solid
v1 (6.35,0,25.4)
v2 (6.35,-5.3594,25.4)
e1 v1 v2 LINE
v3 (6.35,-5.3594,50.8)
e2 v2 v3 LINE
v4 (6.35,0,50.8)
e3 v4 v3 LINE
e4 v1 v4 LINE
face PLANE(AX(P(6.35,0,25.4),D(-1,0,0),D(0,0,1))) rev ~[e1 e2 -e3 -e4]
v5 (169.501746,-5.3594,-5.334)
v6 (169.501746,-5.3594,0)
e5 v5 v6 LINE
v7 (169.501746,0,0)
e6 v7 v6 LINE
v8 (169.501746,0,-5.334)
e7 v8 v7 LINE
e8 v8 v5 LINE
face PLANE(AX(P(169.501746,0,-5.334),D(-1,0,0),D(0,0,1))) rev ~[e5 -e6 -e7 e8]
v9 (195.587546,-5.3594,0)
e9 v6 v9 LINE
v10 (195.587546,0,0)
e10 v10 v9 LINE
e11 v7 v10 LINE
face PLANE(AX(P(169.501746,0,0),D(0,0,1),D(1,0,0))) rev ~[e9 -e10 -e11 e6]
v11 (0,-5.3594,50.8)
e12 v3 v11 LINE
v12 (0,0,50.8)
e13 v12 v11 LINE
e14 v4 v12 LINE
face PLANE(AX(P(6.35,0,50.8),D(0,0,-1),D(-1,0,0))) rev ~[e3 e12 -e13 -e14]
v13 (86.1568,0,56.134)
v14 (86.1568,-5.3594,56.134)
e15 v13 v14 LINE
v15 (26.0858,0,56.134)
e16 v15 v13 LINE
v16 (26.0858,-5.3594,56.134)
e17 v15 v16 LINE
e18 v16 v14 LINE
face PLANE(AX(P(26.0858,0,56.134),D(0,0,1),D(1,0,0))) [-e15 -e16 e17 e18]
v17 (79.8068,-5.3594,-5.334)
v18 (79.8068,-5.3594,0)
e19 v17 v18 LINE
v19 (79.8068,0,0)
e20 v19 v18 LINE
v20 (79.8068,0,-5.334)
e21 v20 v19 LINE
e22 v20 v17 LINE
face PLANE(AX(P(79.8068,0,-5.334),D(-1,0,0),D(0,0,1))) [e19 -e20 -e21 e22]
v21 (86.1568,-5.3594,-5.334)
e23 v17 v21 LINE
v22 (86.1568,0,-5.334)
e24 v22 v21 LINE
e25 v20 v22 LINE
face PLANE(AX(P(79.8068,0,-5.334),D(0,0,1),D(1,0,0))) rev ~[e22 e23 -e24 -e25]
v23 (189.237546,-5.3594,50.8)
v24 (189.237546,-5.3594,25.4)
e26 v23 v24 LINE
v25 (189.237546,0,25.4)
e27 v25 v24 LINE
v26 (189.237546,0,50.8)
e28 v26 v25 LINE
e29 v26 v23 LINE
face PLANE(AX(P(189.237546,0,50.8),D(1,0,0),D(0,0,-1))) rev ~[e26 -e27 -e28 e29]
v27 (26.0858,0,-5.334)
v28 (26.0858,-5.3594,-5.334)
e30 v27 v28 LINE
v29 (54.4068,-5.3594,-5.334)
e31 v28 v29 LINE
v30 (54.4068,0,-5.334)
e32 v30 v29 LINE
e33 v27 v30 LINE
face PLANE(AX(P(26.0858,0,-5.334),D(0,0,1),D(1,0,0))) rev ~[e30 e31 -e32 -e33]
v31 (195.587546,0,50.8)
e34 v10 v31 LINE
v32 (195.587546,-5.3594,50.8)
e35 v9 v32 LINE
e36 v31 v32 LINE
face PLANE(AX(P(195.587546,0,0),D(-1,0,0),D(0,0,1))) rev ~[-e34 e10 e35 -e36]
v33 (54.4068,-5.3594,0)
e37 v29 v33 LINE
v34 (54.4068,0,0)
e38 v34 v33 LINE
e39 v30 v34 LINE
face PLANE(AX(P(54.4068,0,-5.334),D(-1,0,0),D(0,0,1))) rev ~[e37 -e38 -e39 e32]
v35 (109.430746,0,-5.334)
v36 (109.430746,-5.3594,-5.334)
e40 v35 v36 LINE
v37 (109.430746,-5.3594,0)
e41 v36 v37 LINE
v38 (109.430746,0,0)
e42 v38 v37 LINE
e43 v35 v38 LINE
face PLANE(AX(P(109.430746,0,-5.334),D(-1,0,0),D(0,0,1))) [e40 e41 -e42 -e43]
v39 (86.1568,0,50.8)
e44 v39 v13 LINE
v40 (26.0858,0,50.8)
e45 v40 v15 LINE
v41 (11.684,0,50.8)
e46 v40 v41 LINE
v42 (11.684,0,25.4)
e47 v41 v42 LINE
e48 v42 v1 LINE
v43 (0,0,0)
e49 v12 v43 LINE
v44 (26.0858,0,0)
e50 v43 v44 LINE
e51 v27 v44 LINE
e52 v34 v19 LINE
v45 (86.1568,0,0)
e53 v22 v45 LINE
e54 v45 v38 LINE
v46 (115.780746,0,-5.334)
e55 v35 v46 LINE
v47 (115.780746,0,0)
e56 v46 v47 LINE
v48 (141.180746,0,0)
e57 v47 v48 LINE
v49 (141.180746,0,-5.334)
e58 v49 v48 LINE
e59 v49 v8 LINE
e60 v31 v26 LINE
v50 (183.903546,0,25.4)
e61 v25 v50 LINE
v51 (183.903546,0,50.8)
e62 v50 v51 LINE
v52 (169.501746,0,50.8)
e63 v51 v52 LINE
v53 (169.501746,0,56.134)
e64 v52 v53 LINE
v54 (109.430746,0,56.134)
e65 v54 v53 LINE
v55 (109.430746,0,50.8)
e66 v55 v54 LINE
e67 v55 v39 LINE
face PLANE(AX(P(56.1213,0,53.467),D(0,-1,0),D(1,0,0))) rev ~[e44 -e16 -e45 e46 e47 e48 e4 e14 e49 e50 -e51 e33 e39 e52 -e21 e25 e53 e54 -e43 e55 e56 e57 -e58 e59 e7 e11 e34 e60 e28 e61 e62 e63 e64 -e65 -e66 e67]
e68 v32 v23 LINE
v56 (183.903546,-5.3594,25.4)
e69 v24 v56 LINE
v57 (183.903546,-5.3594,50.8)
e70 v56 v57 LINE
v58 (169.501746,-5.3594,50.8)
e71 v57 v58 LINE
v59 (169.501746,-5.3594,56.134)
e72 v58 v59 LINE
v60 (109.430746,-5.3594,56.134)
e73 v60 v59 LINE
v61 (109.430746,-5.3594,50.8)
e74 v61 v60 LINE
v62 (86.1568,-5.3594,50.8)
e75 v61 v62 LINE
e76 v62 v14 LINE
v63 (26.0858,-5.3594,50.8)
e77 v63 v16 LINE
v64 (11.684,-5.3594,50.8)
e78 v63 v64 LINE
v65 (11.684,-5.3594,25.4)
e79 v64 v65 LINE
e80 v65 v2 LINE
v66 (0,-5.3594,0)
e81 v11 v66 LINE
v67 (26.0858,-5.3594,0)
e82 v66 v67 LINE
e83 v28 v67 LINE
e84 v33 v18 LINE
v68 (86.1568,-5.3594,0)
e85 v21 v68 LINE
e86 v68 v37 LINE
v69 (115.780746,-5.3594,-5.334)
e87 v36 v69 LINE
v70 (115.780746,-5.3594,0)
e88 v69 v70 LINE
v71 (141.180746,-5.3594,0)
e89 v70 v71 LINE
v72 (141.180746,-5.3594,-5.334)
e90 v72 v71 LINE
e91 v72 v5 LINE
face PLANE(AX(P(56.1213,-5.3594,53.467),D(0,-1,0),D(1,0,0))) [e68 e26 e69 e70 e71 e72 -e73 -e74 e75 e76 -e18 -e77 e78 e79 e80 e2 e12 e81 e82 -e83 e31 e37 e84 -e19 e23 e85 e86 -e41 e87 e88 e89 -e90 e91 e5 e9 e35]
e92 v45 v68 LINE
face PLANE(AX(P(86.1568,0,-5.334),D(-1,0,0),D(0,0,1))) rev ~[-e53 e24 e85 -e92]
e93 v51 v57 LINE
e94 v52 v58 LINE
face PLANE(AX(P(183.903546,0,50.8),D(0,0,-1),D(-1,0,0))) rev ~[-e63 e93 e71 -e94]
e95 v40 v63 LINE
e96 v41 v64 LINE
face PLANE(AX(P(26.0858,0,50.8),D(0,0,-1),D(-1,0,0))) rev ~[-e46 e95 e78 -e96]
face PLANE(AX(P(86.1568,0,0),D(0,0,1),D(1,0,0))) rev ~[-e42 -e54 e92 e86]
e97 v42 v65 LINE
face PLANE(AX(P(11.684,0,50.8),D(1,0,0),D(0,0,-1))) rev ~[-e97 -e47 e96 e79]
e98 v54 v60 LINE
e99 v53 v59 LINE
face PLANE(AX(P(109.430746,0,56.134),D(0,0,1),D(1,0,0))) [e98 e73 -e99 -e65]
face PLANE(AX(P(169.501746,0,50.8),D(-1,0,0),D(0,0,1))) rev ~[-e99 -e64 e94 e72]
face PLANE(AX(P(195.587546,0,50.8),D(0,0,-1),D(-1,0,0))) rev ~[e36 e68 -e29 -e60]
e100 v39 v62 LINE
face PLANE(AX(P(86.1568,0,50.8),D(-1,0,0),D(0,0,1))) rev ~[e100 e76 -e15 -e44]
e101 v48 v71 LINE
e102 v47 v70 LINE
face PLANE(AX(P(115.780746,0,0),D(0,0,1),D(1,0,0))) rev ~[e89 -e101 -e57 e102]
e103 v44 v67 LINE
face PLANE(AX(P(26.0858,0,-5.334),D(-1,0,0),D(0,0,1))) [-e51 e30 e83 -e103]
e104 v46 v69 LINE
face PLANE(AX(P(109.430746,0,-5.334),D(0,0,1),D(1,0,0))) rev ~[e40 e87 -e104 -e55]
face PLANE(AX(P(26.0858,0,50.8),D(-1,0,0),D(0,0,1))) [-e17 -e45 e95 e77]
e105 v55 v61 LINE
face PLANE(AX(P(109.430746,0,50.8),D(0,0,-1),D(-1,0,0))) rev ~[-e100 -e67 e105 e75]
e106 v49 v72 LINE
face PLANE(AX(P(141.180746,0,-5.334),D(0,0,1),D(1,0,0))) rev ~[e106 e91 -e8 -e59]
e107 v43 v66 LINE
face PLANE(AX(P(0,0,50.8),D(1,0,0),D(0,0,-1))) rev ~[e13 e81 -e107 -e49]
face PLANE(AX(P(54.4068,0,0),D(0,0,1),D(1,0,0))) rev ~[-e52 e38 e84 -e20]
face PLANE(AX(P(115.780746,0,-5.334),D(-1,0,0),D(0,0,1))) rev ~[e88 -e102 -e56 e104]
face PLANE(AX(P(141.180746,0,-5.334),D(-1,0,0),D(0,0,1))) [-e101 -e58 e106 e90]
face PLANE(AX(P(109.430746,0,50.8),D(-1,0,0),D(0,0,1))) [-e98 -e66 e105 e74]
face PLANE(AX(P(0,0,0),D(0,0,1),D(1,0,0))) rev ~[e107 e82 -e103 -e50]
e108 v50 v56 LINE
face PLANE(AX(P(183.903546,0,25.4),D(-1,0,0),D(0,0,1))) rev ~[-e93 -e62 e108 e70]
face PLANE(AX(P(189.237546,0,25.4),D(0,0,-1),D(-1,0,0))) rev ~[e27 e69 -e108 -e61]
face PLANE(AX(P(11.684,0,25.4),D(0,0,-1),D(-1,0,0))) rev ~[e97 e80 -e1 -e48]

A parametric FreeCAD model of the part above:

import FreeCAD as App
import Part
import Sketcher
from FreeCAD import Vector
Q = App.Units.Quantity

doc = App.newDocument("Part")
body = doc.addObject("PartDesign::Body", "Body")

# Sketch on XZ plane
sketch1 = body.newObject("Sketcher::SketchObject", "Sketch")
sketch1.AttachmentSupport = (doc.getObject("XZ_Plane"), [""])
sketch1.MapMode = "FlatFace"
sketch1.addGeometry(Part.LineSegment(Vector(26, 56, 0), Vector(26, 51, 0)), False)
sketch1.addGeometry(Part.LineSegment(Vector(26, 51, 0), Vector(12, 51, 0)), False)
sketch1.addGeometry(Part.LineSegment(Vector(12, 51, 0), Vector(12, 25, 0)), False)
sketch1.addGeometry(Part.LineSegment(Vector(12, 25, 0), Vector(6, 25, 0)), False)
sketch1.addGeometry(Part.LineSegment(Vector(6, 25, 0), Vector(6, 51, 0)), False)
sketch1.addGeometry(Part.LineSegment(Vector(6, 51, 0), Vector(0, 51, 0)), False)
sketch1.addGeometry(Part.LineSegment(Vector(0, 51, 0), Vector(0, 0, 0)), False)
sketch1.addGeometry(Part.LineSegment(Vector(0, 0, 0), Vector(26, 0, 0)), False)
sketch1.addGeometry(Part.LineSegment(Vector(26, 0, 0), Vector(26, -5, 0)), False)
sketch1.addGeometry(Part.LineSegment(Vector(26, -5, 0), Vector(54, -5, 0)), False)
sketch1.addGeometry(Part.LineSegment(Vector(54, -5, 0), Vector(54, 0, 0)), False)
sketch1.addGeometry(Part.LineSegment(Vector(54, 0, 0), Vector(80, 0, 0)), False)
sketch1.addGeometry(Part.LineSegment(Vector(80, 0, 0), Vector(80, -5, 0)), False)
sketch1.addGeometry(Part.LineSegment(Vector(80, -5, 0), Vector(86, -5, 0)), False)
sketch1.addGeometry(Part.LineSegment(Vector(86, -5, 0), Vector(86, 0, 0)), False)
sketch1.addGeometry(Part.LineSegment(Vector(86, 0, 0), Vector(109, 0, 0)), False)
sketch1.addGeometry(Part.LineSegment(Vector(109, 0, 0), Vector(109, -5, 0)), False)
sketch1.addGeometry(Part.LineSegment(Vector(109, -5, 0), Vector(116, -5, 0)), False)
sketch1.addGeometry(Part.LineSegment(Vector(116, -5, 0), Vector(116, 0, 0)), False)
sketch1.addGeometry(Part.LineSegment(Vector(116, 0, 0), Vector(141, 0, 0)), False)
sketch1.addGeometry(Part.LineSegment(Vector(141, 0, 0), Vector(141, -5, 0)), False)
sketch1.addGeometry(Part.LineSegment(Vector(141, -5, 0), Vector(170, -5, 0)), False)
sketch1.addGeometry(Part.LineSegment(Vector(170, -5, 0), Vector(170, 0, 0)), False)
sketch1.addGeometry(Part.LineSegment(Vector(170, 0, 0), Vector(196, 0, 0)), False)
sketch1.addGeometry(Part.LineSegment(Vector(196, 0, 0), Vector(196, 51, 0)), False)
sketch1.addGeometry(Part.LineSegment(Vector(196, 51, 0), Vector(189, 51, 0)), False)
sketch1.addGeometry(Part.LineSegment(Vector(189, 51, 0), Vector(189, 25, 0)), False)
sketch1.addGeometry(Part.LineSegment(Vector(189, 25, 0), Vector(184, 25, 0)), False)
sketch1.addGeometry(Part.LineSegment(Vector(184, 25, 0), Vector(184, 51, 0)), False)
sketch1.addGeometry(Part.LineSegment(Vector(184, 51, 0), Vector(170, 51, 0)), False)
sketch1.addGeometry(Part.LineSegment(Vector(170, 51, 0), Vector(170, 56, 0)), False)
sketch1.addGeometry(Part.LineSegment(Vector(170, 56, 0), Vector(109, 56, 0)), False)
sketch1.addGeometry(Part.LineSegment(Vector(109, 56, 0), Vector(109, 51, 0)), False)
sketch1.addGeometry(Part.LineSegment(Vector(109, 51, 0), Vector(86, 51, 0)), False)
sketch1.addGeometry(Part.LineSegment(Vector(86, 51, 0), Vector(86, 56, 0)), False)
sketch1.addGeometry(Part.LineSegment(Vector(86, 56, 0), Vector(26, 56, 0)), False)
sketch1.addConstraint(Sketcher.Constraint("Coincident", 0, 2, 1, 1))
sketch1.addConstraint(Sketcher.Constraint("Coincident", 1, 2, 2, 1))
sketch1.addConstraint(Sketcher.Constraint("Coincident", 2, 2, 3, 1))
sketch1.addConstraint(Sketcher.Constraint("Coincident", 3, 2, 4, 1))
sketch1.addConstraint(Sketcher.Constraint("Coincident", 4, 2, 5, 1))
sketch1.addConstraint(Sketcher.Constraint("Coincident", 5, 2, 6, 1))
sketch1.addConstraint(Sketcher.Constraint("Coincident", 6, 2, 7, 1))
sketch1.addConstraint(Sketcher.Constraint("Coincident", 7, 2, 8, 1))
sketch1.addConstraint(Sketcher.Constraint("Coincident", 8, 2, 9, 1))
sketch1.addConstraint(Sketcher.Constraint("Coincident", 9, 2, 10, 1))
sketch1.addConstraint(Sketcher.Constraint("Coincident", 10, 2, 11, 1))
sketch1.addConstraint(Sketcher.Constraint("Coincident", 11, 2, 12, 1))
sketch1.addConstraint(Sketcher.Constraint("Coincident", 12, 2, 13, 1))
sketch1.addConstraint(Sketcher.Constraint("Coincident", 13, 2, 14, 1))
sketch1.addConstraint(Sketcher.Constraint("Coincident", 14, 2, 15, 1))
sketch1.addConstraint(Sketcher.Constraint("Coincident", 15, 2, 16, 1))
sketch1.addConstraint(Sketcher.Constraint("Coincident", 16, 2, 17, 1))
sketch1.addConstraint(Sketcher.Constraint("Coincident", 17, 2, 18, 1))
sketch1.addConstraint(Sketcher.Constraint("Coincident", 18, 2, 19, 1))
sketch1.addConstraint(Sketcher.Constraint("Coincident", 19, 2, 20, 1))
sketch1.addConstraint(Sketcher.Constraint("Coincident", 20, 2, 21, 1))
sketch1.addConstraint(Sketcher.Constraint("Coincident", 21, 2, 22, 1))
sketch1.addConstraint(Sketcher.Constraint("Coincident", 22, 2, 23, 1))
sketch1.addConstraint(Sketcher.Constraint("Coincident", 23, 2, 24, 1))
sketch1.addConstraint(Sketcher.Constraint("Coincident", 24, 2, 25, 1))
sketch1.addConstraint(Sketcher.Constraint("Coincident", 25, 2, 26, 1))
sketch1.addConstraint(Sketcher.Constraint("Coincident", 26, 2, 27, 1))
sketch1.addConstraint(Sketcher.Constraint("Coincident", 27, 2, 28, 1))
sketch1.addConstraint(Sketcher.Constraint("Coincident", 28, 2, 29, 1))
sketch1.addConstraint(Sketcher.Constraint("Coincident", 29, 2, 30, 1))
sketch1.addConstraint(Sketcher.Constraint("Coincident", 30, 2, 31, 1))
sketch1.addConstraint(Sketcher.Constraint("Coincident", 31, 2, 32, 1))
sketch1.addConstraint(Sketcher.Constraint("Coincident", 32, 2, 33, 1))
sketch1.addConstraint(Sketcher.Constraint("Coincident", 33, 2, 34, 1))
sketch1.addConstraint(Sketcher.Constraint("Coincident", 34, 2, 35, 1))
sketch1.addConstraint(Sketcher.Constraint("Coincident", 35, 2, 0, 1))
sketch1.addConstraint(Sketcher.Constraint("Vertical", 0))
sketch1.addConstraint(Sketcher.Constraint("Horizontal", 1))
sketch1.addConstraint(Sketcher.Constraint("Vertical", 2))
sketch1.addConstraint(Sketcher.Constraint("Horizontal", 3))
sketch1.addConstraint(Sketcher.Constraint("Vertical", 4))
sketch1.addConstraint(Sketcher.Constraint("Horizontal", 5))
sketch1.addConstraint(Sketcher.Constraint("Vertical", 6))
sketch1.addConstraint(Sketcher.Constraint("Horizontal", 7))
sketch1.addConstraint(Sketcher.Constraint("Vertical", 8))
sketch1.addConstraint(Sketcher.Constraint("Horizontal", 9))
sketch1.addConstraint(Sketcher.Constraint("Vertical", 10))
sketch1.addConstraint(Sketcher.Constraint("Horizontal", 11))
sketch1.addConstraint(Sketcher.Constraint("Vertical", 12))
sketch1.addConstraint(Sketcher.Constraint("Horizontal", 13))
sketch1.addConstraint(Sketcher.Constraint("Vertical", 14))
sketch1.addConstraint(Sketcher.Constraint("Horizontal", 15))
sketch1.addConstraint(Sketcher.Constraint("Vertical", 16))
sketch1.addConstraint(Sketcher.Constraint("Horizontal", 17))
sketch1.addConstraint(Sketcher.Constraint("Vertical", 18))
sketch1.addConstraint(Sketcher.Constraint("Horizontal", 19))
sketch1.addConstraint(Sketcher.Constraint("Vertical", 20))
sketch1.addConstraint(Sketcher.Constraint("Horizontal", 21))
sketch1.addConstraint(Sketcher.Constraint("Vertical", 22))
sketch1.addConstraint(Sketcher.Constraint("Horizontal", 23))
sketch1.addConstraint(Sketcher.Constraint("Vertical", 24))
sketch1.addConstraint(Sketcher.Constraint("Horizontal", 25))
sketch1.addConstraint(Sketcher.Constraint("Vertical", 26))
sketch1.addConstraint(Sketcher.Constraint("Horizontal", 27))
sketch1.addConstraint(Sketcher.Constraint("Vertical", 28))
sketch1.addConstraint(Sketcher.Constraint("Horizontal", 29))
sketch1.addConstraint(Sketcher.Constraint("Vertical", 30))
sketch1.addConstraint(Sketcher.Constraint("Horizontal", 31))
sketch1.addConstraint(Sketcher.Constraint("Vertical", 32))
sketch1.addConstraint(Sketcher.Constraint("Horizontal", 33))
sketch1.addConstraint(Sketcher.Constraint("Vertical", 34))
sketch1.addConstraint(Sketcher.Constraint("Horizontal", 35))
sketch1.addConstraint(Sketcher.Constraint("Coincident", 6, 2, -1, 1))
sketch1.addConstraint(Sketcher.Constraint("PointOnObject", 10, 2, -1))
sketch1.addConstraint(Sketcher.Constraint("PointOnObject", 14, 2, -1))
sketch1.addConstraint(Sketcher.Constraint("PointOnObject", 18, 2, -1))
sketch1.addConstraint(Sketcher.Constraint("PointOnObject", 22, 2, -1))
sketch1.addConstraint(Sketcher.Constraint("Horizontal", 1, 2, 4, 2))
sketch1.addConstraint(Sketcher.Constraint("Horizontal", 9, 2, 12, 2))
sketch1.addConstraint(Sketcher.Constraint("Horizontal", 13, 2, 16, 2))
sketch1.addConstraint(Sketcher.Constraint("Horizontal", 17, 2, 20, 2))
sketch1.addConstraint(Sketcher.Constraint("Horizontal", 5, 2, 24, 2))
sketch1.addConstraint(Sketcher.Constraint("Horizontal", 3, 2, 26, 2))
sketch1.addConstraint(Sketcher.Constraint("Horizontal", 25, 2, 28, 2))
sketch1.addConstraint(Sketcher.Constraint("Horizontal", 29, 2, 32, 2))
sketch1.addConstraint(Sketcher.Constraint("Horizontal", 31, 2, 34, 2))
sketch1.addConstraint(Sketcher.Constraint("Vertical", 0, 2, 7, 2))
sketch1.addConstraint(Sketcher.Constraint("Vertical", 22, 2, 29, 2))
sketch1.addConstraint(Sketcher.Constraint("Vertical", 16, 2, 31, 2))
sketch1.addConstraint(Sketcher.Constraint("Vertical", 14, 2, 33, 2))
sketch1.addConstraint(Sketcher.Constraint("Equal", 5, 13))
sketch1.addConstraint(Sketcher.Constraint("Equal", 13, 17))
sketch1.addConstraint(Sketcher.Constraint("Equal", 11, 19))
sketch1.addConstraint(Sketcher.Constraint("Equal", 9, 21))
sketch1.addConstraint(Sketcher.Constraint("Equal", 7, 23))
sketch1.addConstraint(Sketcher.Constraint("Equal", 17, 25))
sketch1.addConstraint(Sketcher.Constraint("Equal", 3, 27))
sketch1.addConstraint(Sketcher.Constraint("Equal", 27, 0))
sketch1.addConstraint(Sketcher.Constraint("Equal", 19, 2))
sketch1.addConstraint(Sketcher.Constraint("Equal", 0, 8))
sketch1.addConstraint(Sketcher.Constraint("DistanceX", 11, 1, 11, 2, Q("1 in")))
sketch1.addConstraint(Sketcher.Constraint("DistanceY", 6, 2, 6, 1, Q("2 in")))
sketch1.addConstraint(Sketcher.Constraint("DistanceX", 3, 2, 3, 1, Q("0.21 in")))
sketch1.addConstraint(Sketcher.Constraint("DistanceX", 5, 2, 5, 1, Q("0.25 in")))
sketch1.addConstraint(Sketcher.Constraint("DistanceX", 1, 2, 1, 1, Q("0.567 in")))
sketch1.addConstraint(Sketcher.Constraint("DistanceX", 9, 1, 9, 2, Q("1.115 in")))
sketch1.addConstraint(Sketcher.Constraint("DistanceX", 15, 1, 15, 2, 23.273946))
pad1 = body.newObject("PartDesign::Pad", "Pad")
pad1.Profile = sketch1
pad1.Length = Q("0.211 in")

doc.recompute()
